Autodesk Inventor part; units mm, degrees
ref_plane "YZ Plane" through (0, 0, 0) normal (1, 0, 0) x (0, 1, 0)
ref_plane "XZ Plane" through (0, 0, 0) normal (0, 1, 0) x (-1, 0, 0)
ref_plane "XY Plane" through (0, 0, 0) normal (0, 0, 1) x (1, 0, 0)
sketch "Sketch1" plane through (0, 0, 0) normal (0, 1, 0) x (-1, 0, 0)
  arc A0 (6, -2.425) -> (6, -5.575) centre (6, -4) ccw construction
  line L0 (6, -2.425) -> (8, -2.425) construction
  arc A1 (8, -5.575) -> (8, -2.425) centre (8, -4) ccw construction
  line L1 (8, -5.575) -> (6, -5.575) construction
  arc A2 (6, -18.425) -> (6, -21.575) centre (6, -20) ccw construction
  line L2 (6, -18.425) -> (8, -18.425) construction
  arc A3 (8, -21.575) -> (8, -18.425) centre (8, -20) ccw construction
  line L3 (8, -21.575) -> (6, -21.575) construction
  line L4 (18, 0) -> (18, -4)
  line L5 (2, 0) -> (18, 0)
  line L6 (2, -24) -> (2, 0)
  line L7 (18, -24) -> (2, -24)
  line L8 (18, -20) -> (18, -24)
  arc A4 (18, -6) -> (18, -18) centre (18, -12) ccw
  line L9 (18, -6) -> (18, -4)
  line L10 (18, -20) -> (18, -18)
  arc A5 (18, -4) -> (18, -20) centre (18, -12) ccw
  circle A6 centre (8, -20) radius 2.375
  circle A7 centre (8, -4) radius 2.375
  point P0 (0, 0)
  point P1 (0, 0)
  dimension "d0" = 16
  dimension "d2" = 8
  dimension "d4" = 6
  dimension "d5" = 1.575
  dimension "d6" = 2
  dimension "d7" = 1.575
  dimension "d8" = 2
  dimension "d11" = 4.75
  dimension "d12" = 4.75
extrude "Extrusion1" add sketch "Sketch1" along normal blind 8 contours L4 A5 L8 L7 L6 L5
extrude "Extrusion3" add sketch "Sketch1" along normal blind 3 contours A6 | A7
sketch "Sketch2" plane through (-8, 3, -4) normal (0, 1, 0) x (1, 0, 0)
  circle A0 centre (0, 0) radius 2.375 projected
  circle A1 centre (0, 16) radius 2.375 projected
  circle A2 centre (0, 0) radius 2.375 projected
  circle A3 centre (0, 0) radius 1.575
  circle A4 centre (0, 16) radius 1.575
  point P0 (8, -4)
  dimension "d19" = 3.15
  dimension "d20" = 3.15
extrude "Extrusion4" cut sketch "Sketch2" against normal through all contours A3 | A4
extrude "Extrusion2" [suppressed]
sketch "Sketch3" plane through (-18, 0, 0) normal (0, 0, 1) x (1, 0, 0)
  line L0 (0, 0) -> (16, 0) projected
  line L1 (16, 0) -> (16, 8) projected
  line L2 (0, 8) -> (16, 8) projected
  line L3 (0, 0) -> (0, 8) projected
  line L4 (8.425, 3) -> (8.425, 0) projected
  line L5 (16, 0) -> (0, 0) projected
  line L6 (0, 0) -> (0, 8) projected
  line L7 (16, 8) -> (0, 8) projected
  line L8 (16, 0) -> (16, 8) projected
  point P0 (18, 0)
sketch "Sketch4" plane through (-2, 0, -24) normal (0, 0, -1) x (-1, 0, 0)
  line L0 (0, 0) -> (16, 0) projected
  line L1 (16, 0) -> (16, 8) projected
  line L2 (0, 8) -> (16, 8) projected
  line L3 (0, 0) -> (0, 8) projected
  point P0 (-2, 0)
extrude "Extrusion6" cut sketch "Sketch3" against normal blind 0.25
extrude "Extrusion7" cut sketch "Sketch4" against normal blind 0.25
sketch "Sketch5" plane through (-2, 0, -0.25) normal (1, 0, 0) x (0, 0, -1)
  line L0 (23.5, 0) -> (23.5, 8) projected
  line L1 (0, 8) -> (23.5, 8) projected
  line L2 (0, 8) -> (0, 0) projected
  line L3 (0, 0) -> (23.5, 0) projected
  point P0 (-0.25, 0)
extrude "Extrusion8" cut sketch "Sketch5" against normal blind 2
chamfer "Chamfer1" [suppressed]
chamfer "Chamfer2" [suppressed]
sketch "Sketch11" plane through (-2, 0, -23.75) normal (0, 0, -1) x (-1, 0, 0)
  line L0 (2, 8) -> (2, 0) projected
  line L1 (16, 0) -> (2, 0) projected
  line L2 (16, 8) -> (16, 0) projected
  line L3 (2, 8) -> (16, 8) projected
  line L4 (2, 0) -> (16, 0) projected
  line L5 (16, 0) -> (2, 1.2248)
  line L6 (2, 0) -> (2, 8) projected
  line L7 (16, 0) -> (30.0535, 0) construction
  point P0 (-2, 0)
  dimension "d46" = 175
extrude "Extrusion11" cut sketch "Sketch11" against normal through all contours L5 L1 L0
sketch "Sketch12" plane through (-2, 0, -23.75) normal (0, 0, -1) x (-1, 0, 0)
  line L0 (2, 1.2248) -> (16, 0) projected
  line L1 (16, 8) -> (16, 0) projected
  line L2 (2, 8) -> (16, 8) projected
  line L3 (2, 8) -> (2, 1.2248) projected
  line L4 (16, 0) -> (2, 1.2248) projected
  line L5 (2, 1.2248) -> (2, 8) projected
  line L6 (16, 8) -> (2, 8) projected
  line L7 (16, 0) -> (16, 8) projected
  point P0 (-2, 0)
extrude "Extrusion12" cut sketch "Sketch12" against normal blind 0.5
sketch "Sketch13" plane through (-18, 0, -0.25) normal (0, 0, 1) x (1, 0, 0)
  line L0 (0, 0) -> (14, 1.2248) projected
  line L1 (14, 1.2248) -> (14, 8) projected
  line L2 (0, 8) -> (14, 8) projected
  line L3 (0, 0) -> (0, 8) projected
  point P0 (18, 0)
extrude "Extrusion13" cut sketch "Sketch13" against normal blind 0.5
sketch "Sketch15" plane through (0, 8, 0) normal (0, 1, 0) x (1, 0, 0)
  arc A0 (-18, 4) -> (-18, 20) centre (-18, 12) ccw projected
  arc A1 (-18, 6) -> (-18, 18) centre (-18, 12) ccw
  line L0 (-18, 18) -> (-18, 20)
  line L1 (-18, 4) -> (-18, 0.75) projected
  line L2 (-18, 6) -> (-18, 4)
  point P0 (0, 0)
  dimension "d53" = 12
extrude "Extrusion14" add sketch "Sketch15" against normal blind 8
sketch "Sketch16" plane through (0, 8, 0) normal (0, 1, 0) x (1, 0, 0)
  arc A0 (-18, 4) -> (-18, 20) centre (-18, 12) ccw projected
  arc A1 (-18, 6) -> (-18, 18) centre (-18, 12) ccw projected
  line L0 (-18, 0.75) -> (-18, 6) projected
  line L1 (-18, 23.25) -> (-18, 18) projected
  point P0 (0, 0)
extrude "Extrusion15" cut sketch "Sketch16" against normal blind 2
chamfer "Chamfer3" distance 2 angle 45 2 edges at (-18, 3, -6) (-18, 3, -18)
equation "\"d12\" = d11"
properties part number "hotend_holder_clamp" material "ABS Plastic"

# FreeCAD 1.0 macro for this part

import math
import FreeCAD as App
import Part
import Sketcher
from FreeCAD import Vector
Q = App.Units.Quantity


def edges_at(feature, points):
    """Names of the edges that pass closest to the given points."""
    edges = feature.Shape.Edges
    near = lambda p: min(range(len(edges)), key=lambda i: edges[i].distToShape(Part.Vertex(*p))[0])
    return sorted({f"Edge{near(p) + 1}" for p in points})

doc = App.newDocument("Part")
params = doc.addObject("Spreadsheet::Sheet", "Params")
for row, (alias, value) in enumerate([
    ("sketch1_radius", "8 mm"),
    ("sketch1_diameter", "4.75 mm"),
    ("sketch1_width", "16 mm"),
    ("sketch1_height", "4 mm"),
    ("pad1_length", "8 mm"),
    ("sketch2_diameter", "4.75 mm"),
    ("pad2_length", "3 mm"),
    ("sketch3_diameter", "3.15 mm"),
    ("sketch4_width", "16 mm"),
    ("sketch4_height", "8 mm"),
    ("pocket2_length", "0.25 mm"),
    ("sketch5_width", "16 mm"),
    ("sketch5_height", "8 mm"),
    ("pocket3_length", "0.25 mm"),
    ("sketch6_width", "8 mm"),
    ("sketch6_height", "23.5 mm"),
    ("pocket4_length", "2 mm"),
    ("sketch7_width", "14 mm"),
    ("sketch8_width", "14 mm"),
    ("sketch8_height", "8 mm"),
    ("pocket6_length", "0.5 mm"),
    ("sketch9_width", "14 mm"),
    ("sketch9_height", "8 mm"),
    ("pocket7_length", "0.5 mm"),
    ("sketch10_radius", "6 mm"),
    ("sketch10_radius2", "8 mm"),
    ("pad3_length", "8 mm"),
    ("sketch11_radius", "8 mm"),
    ("sketch11_radius2", "6 mm"),
    ("pocket8_length", "2 mm"),
    ("chamfer_size", "2 mm"),
], start=1):
    params.set(f"A{row}", alias)
    params.set(f"B{row}", "=" + value)
    params.setAlias(f"B{row}", alias)

body = doc.addObject("PartDesign::Body", "Body")

# Sketch on XZ plane
sketch1 = body.newObject("Sketcher::SketchObject", "Sketch")
sketch1.AttachmentSupport = (doc.getObject("XZ_Plane"), [""])
sketch1.MapMode = "FlatFace"
sketch1.addGeometry(Part.LineSegment(Vector(-18, -4, 0), Vector(-18, 0, 0)), False)
sketch1.addGeometry(Part.LineSegment(Vector(-18, 0, 0), Vector(-2, 0, 0)), False)
sketch1.addGeometry(Part.LineSegment(Vector(-2, 0, 0), Vector(-2, -24, 0)), False)
sketch1.addGeometry(Part.LineSegment(Vector(-2, -24, 0), Vector(-18, -24, 0)), False)
sketch1.addGeometry(Part.LineSegment(Vector(-18, -24, 0), Vector(-18, -20, 0)), False)
sketch1.addGeometry(Part.ArcOfCircle(Part.Circle(Vector(-18, -12, 0), Vector(0, 0, 1), 8), math.radians(-90), math.radians(90)), False)
sketch1.addGeometry(Part.Circle(Vector(-8, -20, 0), Vector(0, 0, 1), 2.375), False)
sketch1.addGeometry(Part.Circle(Vector(-8, -4, 0), Vector(0, 0, 1), 2.375), False)
sketch1.addConstraint(Sketcher.Constraint("Coincident", 0, 2, 1, 1))
sketch1.addConstraint(Sketcher.Constraint("Coincident", 1, 2, 2, 1))
sketch1.addConstraint(Sketcher.Constraint("Coincident", 2, 2, 3, 1))
sketch1.addConstraint(Sketcher.Constraint("Coincident", 3, 2, 4, 1))
sketch1.addConstraint(Sketcher.Constraint("Coincident", 4, 2, 5, 1))
sketch1.addConstraint(Sketcher.Constraint("Coincident", 5, 2, 0, 1))
sketch1.addConstraint(Sketcher.Constraint("Vertical", 0))
sketch1.addConstraint(Sketcher.Constraint("Horizontal", 1))
sketch1.addConstraint(Sketcher.Constraint("Vertical", 2))
sketch1.addConstraint(Sketcher.Constraint("Horizontal", 3))
sketch1.addConstraint(Sketcher.Constraint("Vertical", 4))
sketch1.addConstraint(Sketcher.Constraint("Equal", 6, 7))
sketch1.addConstraint(Sketcher.Constraint("PointOnObject", 0, 2, -1))
sketch1.addConstraint(Sketcher.Constraint("Horizontal", 6, 3, 4, 2))
sketch1.addConstraint(Sketcher.Constraint("Horizontal", 7, 3, 5, 2))
sketch1.addConstraint(Sketcher.Constraint("Vertical", 6, 3, 7, 3))
sketch1.addConstraint(Sketcher.Constraint("Vertical", 5, 3, 0, 2))
sketch1.addConstraint(Sketcher.Constraint("Vertical", 0, 2, 3, 2))
sketch1.addConstraint(Sketcher.Constraint("Equal", 0, 4))
sketch1.addConstraint(Sketcher.Constraint("Radius", 5, Q("8 mm")))
sketch1.addConstraint(Sketcher.Constraint("Diameter", 6, Q("4.75 mm")))
sketch1.addConstraint(Sketcher.Constraint("DistanceX", 1, 1, 1, 2, Q("16 mm")))
sketch1.addConstraint(Sketcher.Constraint("DistanceX", 6, 3, -1, 1, Q("8 mm")))
sketch1.addConstraint(Sketcher.Constraint("DistanceX", 1, 2, -1, 1, Q("2 mm")))
sketch1.addConstraint(Sketcher.Constraint("DistanceY", 0, 1, 0, 2, Q("4 mm")))
sketch1.setExpression("Constraints[19]", "Params.sketch1_radius")
sketch1.setExpression("Constraints[20]", "Params.sketch1_diameter")
sketch1.setExpression("Constraints[21]", "Params.sketch1_width")
sketch1.setExpression("Constraints[24]", "Params.sketch1_height")
pad1 = body.newObject("PartDesign::Pad", "Pad")
pad1.Profile = sketch1
pad1.setExpression("Length", "Params.pad1_length")
pad1.Reversed = True

# Sketch on XZ plane
sketch2 = body.newObject("Sketcher::SketchObject", "Sketch001")
sketch2.AttachmentSupport = (doc.getObject("XZ_Plane"), [""])
sketch2.MapMode = "FlatFace"
sketch2.addGeometry(Part.Circle(Vector(-8, -20, 0), Vector(0, 0, 1), 2.375), False)
sketch2.addGeometry(Part.Circle(Vector(-8, -4, 0), Vector(0, 0, 1), 2.375), False)
sketch2.addConstraint(Sketcher.Constraint("Equal", 0, 1))
sketch2.addConstraint(Sketcher.Constraint("Vertical", 0, 3, 1, 3))
sketch2.addConstraint(Sketcher.Constraint("Diameter", 0, Q("4.75 mm")))
sketch2.addConstraint(Sketcher.Constraint("DistanceX", 0, 3, -1, 1, Q("8 mm")))
sketch2.addConstraint(Sketcher.Constraint("DistanceY", 0, 3, 1, 3, Q("16 mm")))
sketch2.addConstraint(Sketcher.Constraint("DistanceY", 0, 3, -1, 1, Q("20 mm")))
sketch2.setExpression("Constraints[2]", "Params.sketch2_diameter")
pad2 = body.newObject("PartDesign::Pad", "Pad001")
pad2.Profile = sketch2
pad2.setExpression("Length", "Params.pad2_length")
pad2.Reversed = True

# Sketch on XZ plane
sketch3 = body.newObject("Sketcher::SketchObject", "Sketch002")
sketch3.AttachmentSupport = (doc.getObject("XZ_Plane"), [""])
sketch3.MapMode = "FlatFace"
sketch3.AttachmentOffset = App.Placement(Vector(0, 0, -3), App.Rotation())
sketch3.addGeometry(Part.Circle(Vector(-8, -4, 0), Vector(0, 0, 1), 1.575), False)
sketch3.addGeometry(Part.Circle(Vector(-8, -20, 0), Vector(0, 0, 1), 1.575), False)
sketch3.addConstraint(Sketcher.Constraint("Equal", 0, 1))
sketch3.addConstraint(Sketcher.Constraint("Vertical", 0, 3, 1, 3))
sketch3.addConstraint(Sketcher.Constraint("Diameter", 0, Q("3.15 mm")))
sketch3.addConstraint(Sketcher.Constraint("DistanceX", 0, 3, -1, 1, Q("8 mm")))
sketch3.addConstraint(Sketcher.Constraint("DistanceY", 0, 3, -1, 1, Q("4 mm")))
sketch3.addConstraint(Sketcher.Constraint("DistanceY", 1, 3, -1, 1, Q("20 mm")))
sketch3.setExpression("Constraints[2]", "Params.sketch3_diameter")
pocket1 = body.newObject("PartDesign::Pocket", "Pocket")
pocket1.Profile = sketch3
pocket1.Type = "ThroughAll"
pocket1.Reversed = True

# Sketch on XY plane
sketch4 = body.newObject("Sketcher::SketchObject", "Sketch003")
sketch4.AttachmentSupport = (doc.getObject("XY_Plane"), [""])
sketch4.MapMode = "FlatFace"
sketch4.addGeometry(Part.LineSegment(Vector(-18, 8, 0), Vector(-18, 0, 0)), False)
sketch4.addGeometry(Part.LineSegment(Vector(-18, 0, 0), Vector(-2, 0, 0)), False)
sketch4.addGeometry(Part.LineSegment(Vector(-2, 0, 0), Vector(-2, 8, 0)), False)
sketch4.addGeometry(Part.LineSegment(Vector(-2, 8, 0), Vector(-18, 8, 0)), False)
sketch4.addConstraint(Sketcher.Constraint("Coincident", 0, 2, 1, 1))
sketch4.addConstraint(Sketcher.Constraint("Coincident", 1, 2, 2, 1))
sketch4.addConstraint(Sketcher.Constraint("Coincident", 2, 2, 3, 1))
sketch4.addConstraint(Sketcher.Constraint("Coincident", 3, 2, 0, 1))
sketch4.addConstraint(Sketcher.Constraint("Vertical", 0))
sketch4.addConstraint(Sketcher.Constraint("Horizontal", 1))
sketch4.addConstraint(Sketcher.Constraint("Vertical", 2))
sketch4.addConstraint(Sketcher.Constraint("Horizontal", 3))
sketch4.addConstraint(Sketcher.Constraint("PointOnObject", 0, 2, -1))
sketch4.addConstraint(Sketcher.Constraint("DistanceX", 1, 1, 1, 2, Q("16 mm")))
sketch4.addConstraint(Sketcher.Constraint("DistanceY", 0, 2, 0, 1, Q("8 mm")))
sketch4.addConstraint(Sketcher.Constraint("DistanceX", 0, 2, -1, 1, Q("18 mm")))
sketch4.setExpression("Constraints[9]", "Params.sketch4_width")
sketch4.setExpression("Constraints[10]", "Params.sketch4_height")
pocket2 = body.newObject("PartDesign::Pocket", "Pocket001")
pocket2.Profile = sketch4
pocket2.setExpression("Length", "Params.pocket2_length")

# Sketch on XY plane
sketch5 = body.newObject("Sketcher::SketchObject", "Sketch004")
sketch5.AttachmentSupport = (doc.getObject("XY_Plane"), [""])
sketch5.MapMode = "FlatFace"
sketch5.AttachmentOffset = App.Placement(Vector(0, 0, -24), App.Rotation())
sketch5.addGeometry(Part.LineSegment(Vector(-2, 8, 0), Vector(-2, 0, 0)), False)
sketch5.addGeometry(Part.LineSegment(Vector(-2, 0, 0), Vector(-18, 0, 0)), False)
sketch5.addGeometry(Part.LineSegment(Vector(-18, 0, 0), Vector(-18, 8, 0)), False)
sketch5.addGeometry(Part.LineSegment(Vector(-18, 8, 0), Vector(-2, 8, 0)), False)
sketch5.addConstraint(Sketcher.Constraint("Coincident", 0, 2, 1, 1))
sketch5.addConstraint(Sketcher.Constraint("Coincident", 1, 2, 2, 1))
sketch5.addConstraint(Sketcher.Constraint("Coincident", 2, 2, 3, 1))
sketch5.addConstraint(Sketcher.Constraint("Coincident", 3, 2, 0, 1))
sketch5.addConstraint(Sketcher.Constraint("Vertical", 0))
sketch5.addConstraint(Sketcher.Constraint("Horizontal", 1))
sketch5.addConstraint(Sketcher.Constraint("Vertical", 2))
sketch5.addConstraint(Sketcher.Constraint("Horizontal", 3))
sketch5.addConstraint(Sketcher.Constraint("PointOnObject", 0, 2, -1))
sketch5.addConstraint(Sketcher.Constraint("DistanceX", 1, 2, 1, 1, Q("16 mm")))
sketch5.addConstraint(Sketcher.Constraint("DistanceY", 0, 2, 0, 1, Q("8 mm")))
sketch5.addConstraint(Sketcher.Constraint("DistanceX", 0, 2, -1, 1, Q("2 mm")))
sketch5.setExpression("Constraints[9]", "Params.sketch5_width")
sketch5.setExpression("Constraints[10]", "Params.sketch5_height")
pocket3 = body.newObject("PartDesign::Pocket", "Pocket002")
pocket3.Profile = sketch5
pocket3.setExpression("Length", "Params.pocket3_length")
pocket3.Reversed = True

# Sketch on YZ plane
sketch6 = body.newObject("Sketcher::SketchObject", "Sketch005")
sketch6.AttachmentSupport = (doc.getObject("YZ_Plane"), [""])
sketch6.MapMode = "FlatFace"
sketch6.AttachmentOffset = App.Placement(Vector(0, 0, -2), App.Rotation())
sketch6.addGeometry(Part.LineSegment(Vector(0, -0.25, 0), Vector(0, -23.75, 0)), False)
sketch6.addGeometry(Part.LineSegment(Vector(0, -23.75, 0), Vector(8, -23.75, 0)), False)
sketch6.addGeometry(Part.LineSegment(Vector(8, -23.75, 0), Vector(8, -0.25, 0)), False)
sketch6.addGeometry(Part.LineSegment(Vector(8, -0.25, 0), Vector(0, -0.25, 0)), False)
sketch6.addConstraint(Sketcher.Constraint("Coincident", 0, 2, 1, 1))
sketch6.addConstraint(Sketcher.Constraint("Coincident", 1, 2, 2, 1))
sketch6.addConstraint(Sketcher.Constraint("Coincident", 2, 2, 3, 1))
sketch6.addConstraint(Sketcher.Constraint("Coincident", 3, 2, 0, 1))
sketch6.addConstraint(Sketcher.Constraint("Vertical", 0))
sketch6.addConstraint(Sketcher.Constraint("Horizontal", 1))
sketch6.addConstraint(Sketcher.Constraint("Vertical", 2))
sketch6.addConstraint(Sketcher.Constraint("Horizontal", 3))
sketch6.addConstraint(Sketcher.Constraint("PointOnObject", 0, 2, -2))
sketch6.addConstraint(Sketcher.Constraint("DistanceX", 1, 1, 1, 2, Q("8 mm")))
sketch6.addConstraint(Sketcher.Constraint("DistanceY", 0, 2, 0, 1, Q("23.5 mm")))
sketch6.addConstraint(Sketcher.Constraint("DistanceY", 0, 2, -1, 1, Q("23.75 mm")))
sketch6.setExpression("Constraints[9]", "Params.sketch6_width")
sketch6.setExpression("Constraints[10]", "Params.sketch6_height")
pocket4 = body.newObject("PartDesign::Pocket", "Pocket003")
pocket4.Profile = sketch6
pocket4.setExpression("Length", "Params.pocket4_length")

# Sketch on XY plane
sketch7 = body.newObject("Sketcher::SketchObject", "Sketch006")
sketch7.AttachmentSupport = (doc.getObject("XY_Plane"), [""])
sketch7.MapMode = "FlatFace"
sketch7.AttachmentOffset = App.Placement(Vector(0, 0, -23.75), App.Rotation())
sketch7.addGeometry(Part.LineSegment(Vector(-18, 0, 0), Vector(-4, 1.2248, 0)), False)
sketch7.addGeometry(Part.LineSegment(Vector(-4, 1.2248, 0), Vector(-4, 0, 0)), False)
sketch7.addGeometry(Part.LineSegment(Vector(-4, 0, 0), Vector(-18, 0, 0)), False)
sketch7.addConstraint(Sketcher.Constraint("Coincident", 0, 2, 1, 1))
sketch7.addConstraint(Sketcher.Constraint("Coincident", 1, 2, 2, 1))
sketch7.addConstraint(Sketcher.Constraint("Coincident", 2, 2, 0, 1))
sketch7.addConstraint(Sketcher.Constraint("Vertical", 1))
sketch7.addConstraint(Sketcher.Constraint("Horizontal", 2))
sketch7.addConstraint(Sketcher.Constraint("PointOnObject", 1, 2, -1))
sketch7.addConstraint(Sketcher.Constraint("DistanceX", 2, 2, 2, 1, Q("14 mm")))
sketch7.addConstraint(Sketcher.Constraint("Angle", 0, Q("4.9998 deg")))
sketch7.addConstraint(Sketcher.Constraint("DistanceX", 0, 2, -1, 1, Q("4 mm")))
sketch7.setExpression("Constraints[6]", "Params.sketch7_width")
pocket5 = body.newObject("PartDesign::Pocket", "Pocket004")
pocket5.Profile = sketch7
pocket5.Type = "ThroughAll"
pocket5.Reversed = True

# Sketch on XY plane
sketch8 = body.newObject("Sketcher::SketchObject", "Sketch007")
sketch8.AttachmentSupport = (doc.getObject("XY_Plane"), [""])
sketch8.MapMode = "FlatFace"
sketch8.AttachmentOffset = App.Placement(Vector(0, 0, -23.75), App.Rotation())
sketch8.addGeometry(Part.LineSegment(Vector(-4, 8, 0), Vector(-4, 1.2248, 0)), False)
sketch8.addGeometry(Part.LineSegment(Vector(-4, 1.2248, 0), Vector(-18, 0, 0)), False)
sketch8.addGeometry(Part.LineSegment(Vector(-18, 0, 0), Vector(-18, 8, 0)), False)
sketch8.addGeometry(Part.LineSegment(Vector(-18, 8, 0), Vector(-4, 8, 0)), False)
sketch8.addConstraint(Sketcher.Constraint("Coincident", 0, 2, 1, 1))
sketch8.addConstraint(Sketcher.Constraint("Coincident", 1, 2, 2, 1))
sketch8.addConstraint(Sketcher.Constraint("Coincident", 2, 2, 3, 1))
sketch8.addConstraint(Sketcher.Constraint("Coincident", 3, 2, 0, 1))
sketch8.addConstraint(Sketcher.Constraint("Vertical", 0))
sketch8.addConstraint(Sketcher.Constraint("Vertical", 2))
sketch8.addConstraint(Sketcher.Constraint("Horizontal", 3))
sketch8.addConstraint(Sketcher.Constraint("PointOnObject", 1, 2, -1))
sketch8.addConstraint(Sketcher.Constraint("DistanceX", 3, 1, 3, 2, Q("14 mm")))
sketch8.addConstraint(Sketcher.Constraint("DistanceY", 2, 1, 2, 2, Q("8 mm")))
sketch8.addConstraint(Sketcher.Constraint("Angle", 1, Q("-175.0002 deg")))
sketch8.addConstraint(Sketcher.Constraint("DistanceX", 0, 2, -1, 1, Q("4 mm")))
sketch8.setExpression("Constraints[8]", "Params.sketch8_width")
sketch8.setExpression("Constraints[9]", "Params.sketch8_height")
pocket6 = body.newObject("PartDesign::Pocket", "Pocket005")
pocket6.Profile = sketch8
pocket6.setExpression("Length", "Params.pocket6_length")
pocket6.Reversed = True

# Sketch on XY plane
sketch9 = body.newObject("Sketcher::SketchObject", "Sketch008")
sketch9.AttachmentSupport = (doc.getObject("XY_Plane"), [""])
sketch9.MapMode = "FlatFace"
sketch9.AttachmentOffset = App.Placement(Vector(0, 0, -0.25), App.Rotation())
sketch9.addGeometry(Part.LineSegment(Vector(-18, 8, 0), Vector(-18, 0, 0)), False)
sketch9.addGeometry(Part.LineSegment(Vector(-18, 0, 0), Vector(-4, 1.2248, 0)), False)
sketch9.addGeometry(Part.LineSegment(Vector(-4, 1.2248, 0), Vector(-4, 8, 0)), False)
sketch9.addGeometry(Part.LineSegment(Vector(-4, 8, 0), Vector(-18, 8, 0)), False)
sketch9.addConstraint(Sketcher.Constraint("Coincident", 0, 2, 1, 1))
sketch9.addConstraint(Sketcher.Constraint("Coincident", 1, 2, 2, 1))
sketch9.addConstraint(Sketcher.Constraint("Coincident", 2, 2, 3, 1))
sketch9.addConstraint(Sketcher.Constraint("Coincident", 3, 2, 0, 1))
sketch9.addConstraint(Sketcher.Constraint("Vertical", 0))
sketch9.addConstraint(Sketcher.Constraint("Vertical", 2))
sketch9.addConstraint(Sketcher.Constraint("Horizontal", 3))
sketch9.addConstraint(Sketcher.Constraint("PointOnObject", 0, 2, -1))
sketch9.addConstraint(Sketcher.Constraint("DistanceX", 3, 2, 3, 1, Q("14 mm")))
sketch9.addConstraint(Sketcher.Constraint("DistanceY", 0, 2, 0, 1, Q("8 mm")))
sketch9.addConstraint(Sketcher.Constraint("Angle", 1, Q("4.9998 deg")))
sketch9.addConstraint(Sketcher.Constraint("DistanceX", 0, 2, -1, 1, Q("18 mm")))
sketch9.setExpression("Constraints[8]", "Params.sketch9_width")
sketch9.setExpression("Constraints[9]", "Params.sketch9_height")
pocket7 = body.newObject("PartDesign::Pocket", "Pocket006")
pocket7.Profile = sketch9
pocket7.setExpression("Length", "Params.pocket7_length")

# Sketch on XZ plane
sketch10 = body.newObject("Sketcher::SketchObject", "Sketch009")
sketch10.AttachmentSupport = (doc.getObject("XZ_Plane"), [""])
sketch10.MapMode = "FlatFace"
sketch10.AttachmentOffset = App.Placement(Vector(0, 0, -8), App.Rotation())
sketch10.addGeometry(Part.LineSegment(Vector(-18, -6, 0), Vector(-18, -4, 0)), False)
sketch10.addGeometry(Part.ArcOfCircle(Part.Circle(Vector(-18, -12, 0), Vector(0, 0, 1), 8), math.radians(-90), math.radians(90)), False)
sketch10.addGeometry(Part.LineSegment(Vector(-18, -20, 0), Vector(-18, -18, 0)), False)
sketch10.addGeometry(Part.ArcOfCircle(Part.Circle(Vector(-18, -12, 0), Vector(0, 0, 1), 6), math.radians(-90), math.radians(90)), False)
sketch10.addConstraint(Sketcher.Constraint("Coincident", 0, 2, 1, 2))
sketch10.addConstraint(Sketcher.Constraint("Coincident", 1, 1, 2, 1))
sketch10.addConstraint(Sketcher.Constraint("Coincident", 2, 2, 3, 1))
sketch10.addConstraint(Sketcher.Constraint("Coincident", 3, 2, 0, 1))
sketch10.addConstraint(Sketcher.Constraint("Vertical", 0))
sketch10.addConstraint(Sketcher.Constraint("Vertical", 2))
sketch10.addConstraint(Sketcher.Constraint("Coincident", 3, 3, 1, 3))
sketch10.addConstraint(Sketcher.Constraint("Vertical", 3, 3, 0, 2))
sketch10.addConstraint(Sketcher.Constraint("Vertical", 0, 2, 1, 1))
sketch10.addConstraint(Sketcher.Constraint("Radius", 3, Q("6 mm")))
sketch10.addConstraint(Sketcher.Constraint("DistanceY", 1, 3, -1, 1, Q("12 mm")))
sketch10.addConstraint(Sketcher.Constraint("Radius", 1, Q("8 mm")))
sketch10.addConstraint(Sketcher.Constraint("DistanceX", 1, 3, -1, 1, Q("18 mm")))
sketch10.setExpression("Constraints[9]", "Params.sketch10_radius")
sketch10.setExpression("Constraints[11]", "Params.sketch10_radius2")
pad3 = body.newObject("PartDesign::Pad", "Pad002")
pad3.Profile = sketch10
pad3.setExpression("Length", "Params.pad3_length")

# Sketch on XZ plane
sketch11 = body.newObject("Sketcher::SketchObject", "Sketch010")
sketch11.AttachmentSupport = (doc.getObject("XZ_Plane"), [""])
sketch11.MapMode = "FlatFace"
sketch11.AttachmentOffset = App.Placement(Vector(0, 0, -8), App.Rotation())
sketch11.addGeometry(Part.LineSegment(Vector(-18, -6, 0), Vector(-18, -4, 0)), False)
sketch11.addGeometry(Part.ArcOfCircle(Part.Circle(Vector(-18, -12, 0), Vector(0, 0, 1), 8), math.radians(-90), math.radians(90)), False)
sketch11.addGeometry(Part.LineSegment(Vector(-18, -20, 0), Vector(-18, -18, 0)), False)
sketch11.addGeometry(Part.ArcOfCircle(Part.Circle(Vector(-18, -12, 0), Vector(0, 0, 1), 6), math.radians(-90), math.radians(90)), False)
sketch11.addConstraint(Sketcher.Constraint("Coincident", 0, 2, 1, 2))
sketch11.addConstraint(Sketcher.Constraint("Coincident", 1, 1, 2, 1))
sketch11.addConstraint(Sketcher.Constraint("Coincident", 2, 2, 3, 1))
sketch11.addConstraint(Sketcher.Constraint("Coincident", 3, 2, 0, 1))
sketch11.addConstraint(Sketcher.Constraint("Vertical", 0))
sketch11.addConstraint(Sketcher.Constraint("Vertical", 2))
sketch11.addConstraint(Sketcher.Constraint("Coincident", 3, 3, 1, 3))
sketch11.addConstraint(Sketcher.Constraint("Vertical", 3, 3, 0, 2))
sketch11.addConstraint(Sketcher.Constraint("Vertical", 0, 2, 1, 1))
sketch11.addConstraint(Sketcher.Constraint("Radius", 1, Q("8 mm")))
sketch11.addConstraint(Sketcher.Constraint("Radius", 3, Q("6 mm")))
sketch11.addConstraint(Sketcher.Constraint("DistanceX", 1, 3, -1, 1, Q("18 mm")))
sketch11.addConstraint(Sketcher.Constraint("DistanceY", 1, 3, -1, 1, Q("12 mm")))
sketch11.setExpression("Constraints[9]", "Params.sketch11_radius")
sketch11.setExpression("Constraints[10]", "Params.sketch11_radius2")
pocket8 = body.newObject("PartDesign::Pocket", "Pocket007")
pocket8.Profile = sketch11
pocket8.setExpression("Length", "Params.pocket8_length")
pocket8.Reversed = True
doc.recompute()

chamfer = body.newObject("PartDesign::Chamfer", "Chamfer")
chamfer.Base = (pocket8, edges_at(pocket8, [(-18, 3, -6), (-18, 3, -18)]))
chamfer.setExpression("Size", "Params.chamfer_size")

doc.recompute()
